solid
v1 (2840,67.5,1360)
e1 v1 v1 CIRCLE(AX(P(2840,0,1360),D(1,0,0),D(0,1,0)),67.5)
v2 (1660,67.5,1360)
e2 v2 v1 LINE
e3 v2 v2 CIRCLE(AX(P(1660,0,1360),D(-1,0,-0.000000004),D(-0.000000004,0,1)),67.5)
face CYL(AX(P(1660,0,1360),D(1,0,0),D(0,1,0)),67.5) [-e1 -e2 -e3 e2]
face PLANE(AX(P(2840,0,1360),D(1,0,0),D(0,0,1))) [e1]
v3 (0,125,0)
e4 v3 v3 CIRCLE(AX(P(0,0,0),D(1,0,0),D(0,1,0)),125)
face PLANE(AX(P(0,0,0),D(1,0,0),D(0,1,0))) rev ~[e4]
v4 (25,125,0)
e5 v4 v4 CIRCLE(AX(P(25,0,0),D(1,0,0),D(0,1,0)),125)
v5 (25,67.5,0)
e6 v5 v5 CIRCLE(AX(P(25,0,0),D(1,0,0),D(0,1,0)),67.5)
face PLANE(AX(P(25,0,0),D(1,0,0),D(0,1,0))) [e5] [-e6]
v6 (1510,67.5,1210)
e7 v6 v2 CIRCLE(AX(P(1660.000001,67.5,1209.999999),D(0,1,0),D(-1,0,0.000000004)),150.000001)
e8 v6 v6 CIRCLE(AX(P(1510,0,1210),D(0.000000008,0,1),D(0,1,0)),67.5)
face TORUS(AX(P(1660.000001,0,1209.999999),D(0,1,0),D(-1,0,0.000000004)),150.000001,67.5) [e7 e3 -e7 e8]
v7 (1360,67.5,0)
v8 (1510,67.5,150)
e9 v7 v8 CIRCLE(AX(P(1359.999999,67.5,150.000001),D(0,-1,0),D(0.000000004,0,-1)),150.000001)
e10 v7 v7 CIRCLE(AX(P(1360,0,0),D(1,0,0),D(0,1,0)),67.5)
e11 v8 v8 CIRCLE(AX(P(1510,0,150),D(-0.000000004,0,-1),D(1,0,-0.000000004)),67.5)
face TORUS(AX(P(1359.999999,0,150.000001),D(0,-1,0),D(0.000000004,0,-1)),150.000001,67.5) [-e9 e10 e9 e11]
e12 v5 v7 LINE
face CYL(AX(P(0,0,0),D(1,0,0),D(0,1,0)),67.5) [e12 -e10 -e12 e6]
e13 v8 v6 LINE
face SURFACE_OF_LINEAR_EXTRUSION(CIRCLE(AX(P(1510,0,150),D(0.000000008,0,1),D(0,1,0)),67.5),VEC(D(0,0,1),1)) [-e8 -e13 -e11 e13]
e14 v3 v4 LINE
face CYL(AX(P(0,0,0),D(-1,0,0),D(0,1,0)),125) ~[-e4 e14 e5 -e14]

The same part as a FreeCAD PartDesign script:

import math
import FreeCAD as App
import Part
import Sketcher
from FreeCAD import Vector
Q = App.Units.Quantity

doc = App.newDocument("Part")
body = doc.addObject("PartDesign::Body", "Body")

# Sketch on YZ plane
sketch1 = body.newObject("Sketcher::SketchObject", "Sketch")
sketch1.AttachmentSupport = (doc.getObject("YZ_Plane"), [""])
sketch1.MapMode = "FlatFace"
sketch1.addGeometry(Part.Circle(Vector(0, 0, 0), Vector(0, 0, 1), 67.5), False)
sketch1.addConstraint([
    Sketcher.Constraint("Coincident", 0, 3, -1, 1),
    Sketcher.Constraint("Diameter", 0, Q("135 mm")),
])

# Sketch on XZ plane
sketch2 = body.newObject("Sketcher::SketchObject", "Sketch001")
sketch2.AttachmentSupport = (doc.getObject("XZ_Plane"), [""])
sketch2.MapMode = "FlatFace"
sketch2.addGeometry([
    Part.LineSegment(Vector(0, 0, 0), Vector(1360, 0, 0)),  # 0
    Part.ArcOfCircle(Part.Circle(Vector(1359.999999, 150.000001, 0), Vector(0, 0, 1), 150.000001), math.radians(-90), math.radians(0)),  # 1
    Part.LineSegment(Vector(1510, 150, 0), Vector(1510, 1210, 0)),  # 2
    Part.ArcOfCircle(Part.Circle(Vector(1660.000001, 1209.999999, 0), Vector(0, 0, 1), 150.000001), math.radians(90), math.radians(180)),  # 3
    Part.LineSegment(Vector(1660, 1360, 0), Vector(2840, 1360, 0)),  # 4
], False)
sketch2.addConstraint([
    Sketcher.Constraint("Tangent", 0, 2, 1, 1),
    Sketcher.Constraint("Tangent", 1, 2, 2, 1),
    Sketcher.Constraint("Tangent", 2, 2, 3, 2),
    Sketcher.Constraint("Tangent", 3, 1, 4, 1),
    Sketcher.Constraint("Horizontal", 0),
    Sketcher.Constraint("Vertical", 2),
    Sketcher.Constraint("Horizontal", 4),
    Sketcher.Constraint("Coincident", 0, 1, -1, 1),
    Sketcher.Constraint("Equal", 1, 3),
    Sketcher.Constraint("Radius", 1, Q("150.000001 mm")),
    Sketcher.Constraint("DistanceX", 0, 1, 0, 2, Q("1360 mm")),
    Sketcher.Constraint("DistanceX", 4, 1, 4, 2, Q("1180 mm")),
    Sketcher.Constraint("DistanceY", 2, 1, 2, 2, Q("1060 mm")),
])
doc.recompute()

additivepipe = body.newObject("PartDesign::AdditivePipe", "AdditivePipe")
additivepipe.Profile = sketch1
additivepipe.Spine = (sketch2, ["Edge1", "Edge2", "Edge3", "Edge4", "Edge5"])

# Sketch on YZ plane
sketch3 = body.newObject("Sketcher::SketchObject", "Sketch002")
sketch3.AttachmentSupport = (doc.getObject("YZ_Plane"), [""])
sketch3.MapMode = "FlatFace"
sketch3.addGeometry([
    Part.Circle(Vector(0, 0, 0), Vector(0, 0, 1), 125),
    Part.Circle(Vector(0, 0, 0), Vector(0, 0, 1), 67.5),
], False)
sketch3.addConstraint([
    Sketcher.Constraint("Coincident", 0, 3, -1, 1),
    Sketcher.Constraint("Coincident", 1, 3, -1, 1),
    Sketcher.Constraint("Diameter", 0, Q("250 mm")),
    Sketcher.Constraint("Diameter", 1, Q("135 mm")),
])
pad1 = body.newObject("PartDesign::Pad", "Pad")
pad1.Profile = sketch3
pad1.Length = 25

doc.recompute()
